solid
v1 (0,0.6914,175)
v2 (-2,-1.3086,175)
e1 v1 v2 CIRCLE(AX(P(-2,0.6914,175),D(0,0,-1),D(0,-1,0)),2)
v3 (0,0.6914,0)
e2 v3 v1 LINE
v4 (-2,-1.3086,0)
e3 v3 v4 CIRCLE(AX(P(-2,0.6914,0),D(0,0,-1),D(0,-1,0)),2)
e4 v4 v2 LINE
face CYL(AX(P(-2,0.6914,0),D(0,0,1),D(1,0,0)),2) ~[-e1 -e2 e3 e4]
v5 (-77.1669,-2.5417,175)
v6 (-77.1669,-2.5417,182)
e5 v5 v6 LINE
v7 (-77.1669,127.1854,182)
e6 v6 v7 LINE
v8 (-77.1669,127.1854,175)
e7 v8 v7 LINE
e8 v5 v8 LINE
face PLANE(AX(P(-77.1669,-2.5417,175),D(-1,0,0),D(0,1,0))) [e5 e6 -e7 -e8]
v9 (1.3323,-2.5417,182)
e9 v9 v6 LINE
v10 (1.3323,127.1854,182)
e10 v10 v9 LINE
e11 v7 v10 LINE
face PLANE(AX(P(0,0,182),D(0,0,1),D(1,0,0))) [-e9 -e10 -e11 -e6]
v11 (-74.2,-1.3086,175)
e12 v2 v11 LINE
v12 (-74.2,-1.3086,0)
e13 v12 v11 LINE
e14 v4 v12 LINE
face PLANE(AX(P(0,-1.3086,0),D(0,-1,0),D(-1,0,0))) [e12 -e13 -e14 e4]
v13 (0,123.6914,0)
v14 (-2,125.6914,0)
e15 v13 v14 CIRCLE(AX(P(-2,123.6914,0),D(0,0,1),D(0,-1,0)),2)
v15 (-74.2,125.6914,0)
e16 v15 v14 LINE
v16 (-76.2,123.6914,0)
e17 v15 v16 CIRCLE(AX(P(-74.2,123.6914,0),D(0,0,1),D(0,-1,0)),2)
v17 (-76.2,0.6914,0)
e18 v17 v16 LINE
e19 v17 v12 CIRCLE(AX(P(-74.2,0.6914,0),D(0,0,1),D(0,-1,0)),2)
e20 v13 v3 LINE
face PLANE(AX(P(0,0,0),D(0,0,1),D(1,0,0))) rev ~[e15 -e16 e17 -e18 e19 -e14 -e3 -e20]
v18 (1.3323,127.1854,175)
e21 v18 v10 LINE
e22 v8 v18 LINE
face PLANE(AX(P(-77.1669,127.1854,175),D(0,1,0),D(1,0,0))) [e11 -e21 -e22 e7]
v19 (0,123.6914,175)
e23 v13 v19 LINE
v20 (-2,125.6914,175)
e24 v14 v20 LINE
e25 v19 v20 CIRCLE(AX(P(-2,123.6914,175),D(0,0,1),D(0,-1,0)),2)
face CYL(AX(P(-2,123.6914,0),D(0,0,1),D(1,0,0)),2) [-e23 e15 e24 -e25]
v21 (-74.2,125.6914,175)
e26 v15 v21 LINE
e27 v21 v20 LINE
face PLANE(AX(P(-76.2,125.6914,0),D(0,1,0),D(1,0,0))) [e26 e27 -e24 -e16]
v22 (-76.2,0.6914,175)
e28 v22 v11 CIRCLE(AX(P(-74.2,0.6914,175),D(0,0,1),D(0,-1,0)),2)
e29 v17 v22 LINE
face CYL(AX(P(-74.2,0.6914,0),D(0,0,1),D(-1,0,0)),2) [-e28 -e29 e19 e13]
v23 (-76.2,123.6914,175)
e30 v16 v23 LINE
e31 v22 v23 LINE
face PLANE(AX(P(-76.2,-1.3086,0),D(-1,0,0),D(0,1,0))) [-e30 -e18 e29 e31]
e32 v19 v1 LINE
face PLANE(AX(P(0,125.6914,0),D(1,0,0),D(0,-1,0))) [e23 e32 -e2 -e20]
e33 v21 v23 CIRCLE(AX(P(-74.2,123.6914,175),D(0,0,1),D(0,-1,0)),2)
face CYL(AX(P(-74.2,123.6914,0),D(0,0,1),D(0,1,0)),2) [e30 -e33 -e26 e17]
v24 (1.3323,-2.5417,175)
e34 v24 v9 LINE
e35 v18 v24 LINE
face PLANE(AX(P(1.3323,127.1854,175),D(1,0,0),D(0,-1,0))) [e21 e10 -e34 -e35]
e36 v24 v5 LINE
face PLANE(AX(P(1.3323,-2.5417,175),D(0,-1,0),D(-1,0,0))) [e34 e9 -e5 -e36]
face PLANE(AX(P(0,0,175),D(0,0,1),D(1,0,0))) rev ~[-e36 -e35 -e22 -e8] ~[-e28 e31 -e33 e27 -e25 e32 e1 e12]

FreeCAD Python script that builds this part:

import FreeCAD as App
import Part
import Sketcher

V = App.Vector
Q = App.Units.Quantity


def edges_at(feature, points):
    """Names of the edges that pass closest to the given points."""
    edges = feature.Shape.Edges
    near = lambda p: min(range(len(edges)), key=lambda i: edges[i].distToShape(Part.Vertex(*p))[0])
    return sorted({f"Edge{near(p) + 1}" for p in points})

doc = App.newDocument("Part")
body = doc.addObject("PartDesign::Body", "Body")

sketch1 = body.newObject("Sketcher::SketchObject", "Sketch")
sketch1.AttachmentSupport = (doc.getObject("XY_Plane"), [""])
sketch1.MapMode = "FlatFace"
sketch1.addGeometry([
    Part.LineSegment(V(-76.2, -1.3086, 0), V(0, -1.3086, 0)),
    Part.LineSegment(V(0, -1.3086, 0), V(0, 125.6914, 0)),
    Part.LineSegment(V(0, 125.6914, 0), V(-76.2, 125.6914, 0)),
    Part.LineSegment(V(-76.2, 125.6914, 0), V(-76.2, -1.3086, 0)),
], False)
sketch1.addConstraint([
    Sketcher.Constraint("Coincident", 0, 2, 1, 1),
    Sketcher.Constraint("Coincident", 1, 2, 2, 1),
    Sketcher.Constraint("Coincident", 2, 2, 3, 1),
    Sketcher.Constraint("Coincident", 3, 2, 0, 1),
    Sketcher.Constraint("Horizontal", 0),
    Sketcher.Constraint("Vertical", 1),
    Sketcher.Constraint("Horizontal", 2),
    Sketcher.Constraint("Vertical", 3),
    Sketcher.Constraint("PointOnObject", 0, 2, -2),
    Sketcher.Constraint("DistanceY", 1, 1, 1, 2, Q("127 mm")),
    Sketcher.Constraint("DistanceX", 0, 1, 0, 2, Q("76.2 mm")),
    Sketcher.Constraint("DistanceY", 0, 2, -1, 1, Q("1.3086 mm")),
])
pad1 = body.newObject("PartDesign::Pad", "Pad")
pad1.Profile = sketch1
pad1.Length = 175

sketch2 = body.newObject("Sketcher::SketchObject", "Sketch001")
sketch2.AttachmentSupport = (doc.getObject("XY_Plane"), [""])
sketch2.MapMode = "FlatFace"
sketch2.AttachmentOffset = App.Placement(V(0, 0, 175), App.Rotation())
sketch2.addGeometry([
    Part.LineSegment(V(1.3323, 127.1854, 0), V(-77.1669, 127.1854, 0)),
    Part.LineSegment(V(-77.1669, 127.1854, 0), V(-77.1669, -2.5417, 0)),
    Part.LineSegment(V(-77.1669, -2.5417, 0), V(1.3323, -2.5417, 0)),
    Part.LineSegment(V(1.3323, -2.5417, 0), V(1.3323, 127.1854, 0)),
], False)
sketch2.addConstraint([
    Sketcher.Constraint("Coincident", 0, 2, 1, 1),
    Sketcher.Constraint("Coincident", 1, 2, 2, 1),
    Sketcher.Constraint("Coincident", 2, 2, 3, 1),
    Sketcher.Constraint("Coincident", 3, 2, 0, 1),
    Sketcher.Constraint("Horizontal", 0),
    Sketcher.Constraint("Vertical", 1),
    Sketcher.Constraint("Horizontal", 2),
    Sketcher.Constraint("Vertical", 3),
    Sketcher.Constraint("DistanceY", 1, 2, 1, 1, Q("129.727 mm")),
    Sketcher.Constraint("DistanceX", 0, 2, 0, 1, Q("78.4992 mm")),
    Sketcher.Constraint("DistanceX", 0, 2, -1, 1, Q("77.167 mm")),
    Sketcher.Constraint("DistanceY", -1, 1, 0, 2, Q("127.1854 mm")),
])
pad2 = body.newObject("PartDesign::Pad", "Pad001")
pad2.Profile = sketch2
pad2.Length = 7
doc.recompute()

fillet = body.newObject("PartDesign::Fillet", "Fillet")
fillet.Base = (pad2, edges_at(pad2, [
    (-76.2, -1.309, 87.5),
    (0, -1.309, 87.5),
    (-76.2, 125.691, 87.5),
    (0, 125.691, 87.5),
]))
fillet.Radius = 2

doc.recompute()
